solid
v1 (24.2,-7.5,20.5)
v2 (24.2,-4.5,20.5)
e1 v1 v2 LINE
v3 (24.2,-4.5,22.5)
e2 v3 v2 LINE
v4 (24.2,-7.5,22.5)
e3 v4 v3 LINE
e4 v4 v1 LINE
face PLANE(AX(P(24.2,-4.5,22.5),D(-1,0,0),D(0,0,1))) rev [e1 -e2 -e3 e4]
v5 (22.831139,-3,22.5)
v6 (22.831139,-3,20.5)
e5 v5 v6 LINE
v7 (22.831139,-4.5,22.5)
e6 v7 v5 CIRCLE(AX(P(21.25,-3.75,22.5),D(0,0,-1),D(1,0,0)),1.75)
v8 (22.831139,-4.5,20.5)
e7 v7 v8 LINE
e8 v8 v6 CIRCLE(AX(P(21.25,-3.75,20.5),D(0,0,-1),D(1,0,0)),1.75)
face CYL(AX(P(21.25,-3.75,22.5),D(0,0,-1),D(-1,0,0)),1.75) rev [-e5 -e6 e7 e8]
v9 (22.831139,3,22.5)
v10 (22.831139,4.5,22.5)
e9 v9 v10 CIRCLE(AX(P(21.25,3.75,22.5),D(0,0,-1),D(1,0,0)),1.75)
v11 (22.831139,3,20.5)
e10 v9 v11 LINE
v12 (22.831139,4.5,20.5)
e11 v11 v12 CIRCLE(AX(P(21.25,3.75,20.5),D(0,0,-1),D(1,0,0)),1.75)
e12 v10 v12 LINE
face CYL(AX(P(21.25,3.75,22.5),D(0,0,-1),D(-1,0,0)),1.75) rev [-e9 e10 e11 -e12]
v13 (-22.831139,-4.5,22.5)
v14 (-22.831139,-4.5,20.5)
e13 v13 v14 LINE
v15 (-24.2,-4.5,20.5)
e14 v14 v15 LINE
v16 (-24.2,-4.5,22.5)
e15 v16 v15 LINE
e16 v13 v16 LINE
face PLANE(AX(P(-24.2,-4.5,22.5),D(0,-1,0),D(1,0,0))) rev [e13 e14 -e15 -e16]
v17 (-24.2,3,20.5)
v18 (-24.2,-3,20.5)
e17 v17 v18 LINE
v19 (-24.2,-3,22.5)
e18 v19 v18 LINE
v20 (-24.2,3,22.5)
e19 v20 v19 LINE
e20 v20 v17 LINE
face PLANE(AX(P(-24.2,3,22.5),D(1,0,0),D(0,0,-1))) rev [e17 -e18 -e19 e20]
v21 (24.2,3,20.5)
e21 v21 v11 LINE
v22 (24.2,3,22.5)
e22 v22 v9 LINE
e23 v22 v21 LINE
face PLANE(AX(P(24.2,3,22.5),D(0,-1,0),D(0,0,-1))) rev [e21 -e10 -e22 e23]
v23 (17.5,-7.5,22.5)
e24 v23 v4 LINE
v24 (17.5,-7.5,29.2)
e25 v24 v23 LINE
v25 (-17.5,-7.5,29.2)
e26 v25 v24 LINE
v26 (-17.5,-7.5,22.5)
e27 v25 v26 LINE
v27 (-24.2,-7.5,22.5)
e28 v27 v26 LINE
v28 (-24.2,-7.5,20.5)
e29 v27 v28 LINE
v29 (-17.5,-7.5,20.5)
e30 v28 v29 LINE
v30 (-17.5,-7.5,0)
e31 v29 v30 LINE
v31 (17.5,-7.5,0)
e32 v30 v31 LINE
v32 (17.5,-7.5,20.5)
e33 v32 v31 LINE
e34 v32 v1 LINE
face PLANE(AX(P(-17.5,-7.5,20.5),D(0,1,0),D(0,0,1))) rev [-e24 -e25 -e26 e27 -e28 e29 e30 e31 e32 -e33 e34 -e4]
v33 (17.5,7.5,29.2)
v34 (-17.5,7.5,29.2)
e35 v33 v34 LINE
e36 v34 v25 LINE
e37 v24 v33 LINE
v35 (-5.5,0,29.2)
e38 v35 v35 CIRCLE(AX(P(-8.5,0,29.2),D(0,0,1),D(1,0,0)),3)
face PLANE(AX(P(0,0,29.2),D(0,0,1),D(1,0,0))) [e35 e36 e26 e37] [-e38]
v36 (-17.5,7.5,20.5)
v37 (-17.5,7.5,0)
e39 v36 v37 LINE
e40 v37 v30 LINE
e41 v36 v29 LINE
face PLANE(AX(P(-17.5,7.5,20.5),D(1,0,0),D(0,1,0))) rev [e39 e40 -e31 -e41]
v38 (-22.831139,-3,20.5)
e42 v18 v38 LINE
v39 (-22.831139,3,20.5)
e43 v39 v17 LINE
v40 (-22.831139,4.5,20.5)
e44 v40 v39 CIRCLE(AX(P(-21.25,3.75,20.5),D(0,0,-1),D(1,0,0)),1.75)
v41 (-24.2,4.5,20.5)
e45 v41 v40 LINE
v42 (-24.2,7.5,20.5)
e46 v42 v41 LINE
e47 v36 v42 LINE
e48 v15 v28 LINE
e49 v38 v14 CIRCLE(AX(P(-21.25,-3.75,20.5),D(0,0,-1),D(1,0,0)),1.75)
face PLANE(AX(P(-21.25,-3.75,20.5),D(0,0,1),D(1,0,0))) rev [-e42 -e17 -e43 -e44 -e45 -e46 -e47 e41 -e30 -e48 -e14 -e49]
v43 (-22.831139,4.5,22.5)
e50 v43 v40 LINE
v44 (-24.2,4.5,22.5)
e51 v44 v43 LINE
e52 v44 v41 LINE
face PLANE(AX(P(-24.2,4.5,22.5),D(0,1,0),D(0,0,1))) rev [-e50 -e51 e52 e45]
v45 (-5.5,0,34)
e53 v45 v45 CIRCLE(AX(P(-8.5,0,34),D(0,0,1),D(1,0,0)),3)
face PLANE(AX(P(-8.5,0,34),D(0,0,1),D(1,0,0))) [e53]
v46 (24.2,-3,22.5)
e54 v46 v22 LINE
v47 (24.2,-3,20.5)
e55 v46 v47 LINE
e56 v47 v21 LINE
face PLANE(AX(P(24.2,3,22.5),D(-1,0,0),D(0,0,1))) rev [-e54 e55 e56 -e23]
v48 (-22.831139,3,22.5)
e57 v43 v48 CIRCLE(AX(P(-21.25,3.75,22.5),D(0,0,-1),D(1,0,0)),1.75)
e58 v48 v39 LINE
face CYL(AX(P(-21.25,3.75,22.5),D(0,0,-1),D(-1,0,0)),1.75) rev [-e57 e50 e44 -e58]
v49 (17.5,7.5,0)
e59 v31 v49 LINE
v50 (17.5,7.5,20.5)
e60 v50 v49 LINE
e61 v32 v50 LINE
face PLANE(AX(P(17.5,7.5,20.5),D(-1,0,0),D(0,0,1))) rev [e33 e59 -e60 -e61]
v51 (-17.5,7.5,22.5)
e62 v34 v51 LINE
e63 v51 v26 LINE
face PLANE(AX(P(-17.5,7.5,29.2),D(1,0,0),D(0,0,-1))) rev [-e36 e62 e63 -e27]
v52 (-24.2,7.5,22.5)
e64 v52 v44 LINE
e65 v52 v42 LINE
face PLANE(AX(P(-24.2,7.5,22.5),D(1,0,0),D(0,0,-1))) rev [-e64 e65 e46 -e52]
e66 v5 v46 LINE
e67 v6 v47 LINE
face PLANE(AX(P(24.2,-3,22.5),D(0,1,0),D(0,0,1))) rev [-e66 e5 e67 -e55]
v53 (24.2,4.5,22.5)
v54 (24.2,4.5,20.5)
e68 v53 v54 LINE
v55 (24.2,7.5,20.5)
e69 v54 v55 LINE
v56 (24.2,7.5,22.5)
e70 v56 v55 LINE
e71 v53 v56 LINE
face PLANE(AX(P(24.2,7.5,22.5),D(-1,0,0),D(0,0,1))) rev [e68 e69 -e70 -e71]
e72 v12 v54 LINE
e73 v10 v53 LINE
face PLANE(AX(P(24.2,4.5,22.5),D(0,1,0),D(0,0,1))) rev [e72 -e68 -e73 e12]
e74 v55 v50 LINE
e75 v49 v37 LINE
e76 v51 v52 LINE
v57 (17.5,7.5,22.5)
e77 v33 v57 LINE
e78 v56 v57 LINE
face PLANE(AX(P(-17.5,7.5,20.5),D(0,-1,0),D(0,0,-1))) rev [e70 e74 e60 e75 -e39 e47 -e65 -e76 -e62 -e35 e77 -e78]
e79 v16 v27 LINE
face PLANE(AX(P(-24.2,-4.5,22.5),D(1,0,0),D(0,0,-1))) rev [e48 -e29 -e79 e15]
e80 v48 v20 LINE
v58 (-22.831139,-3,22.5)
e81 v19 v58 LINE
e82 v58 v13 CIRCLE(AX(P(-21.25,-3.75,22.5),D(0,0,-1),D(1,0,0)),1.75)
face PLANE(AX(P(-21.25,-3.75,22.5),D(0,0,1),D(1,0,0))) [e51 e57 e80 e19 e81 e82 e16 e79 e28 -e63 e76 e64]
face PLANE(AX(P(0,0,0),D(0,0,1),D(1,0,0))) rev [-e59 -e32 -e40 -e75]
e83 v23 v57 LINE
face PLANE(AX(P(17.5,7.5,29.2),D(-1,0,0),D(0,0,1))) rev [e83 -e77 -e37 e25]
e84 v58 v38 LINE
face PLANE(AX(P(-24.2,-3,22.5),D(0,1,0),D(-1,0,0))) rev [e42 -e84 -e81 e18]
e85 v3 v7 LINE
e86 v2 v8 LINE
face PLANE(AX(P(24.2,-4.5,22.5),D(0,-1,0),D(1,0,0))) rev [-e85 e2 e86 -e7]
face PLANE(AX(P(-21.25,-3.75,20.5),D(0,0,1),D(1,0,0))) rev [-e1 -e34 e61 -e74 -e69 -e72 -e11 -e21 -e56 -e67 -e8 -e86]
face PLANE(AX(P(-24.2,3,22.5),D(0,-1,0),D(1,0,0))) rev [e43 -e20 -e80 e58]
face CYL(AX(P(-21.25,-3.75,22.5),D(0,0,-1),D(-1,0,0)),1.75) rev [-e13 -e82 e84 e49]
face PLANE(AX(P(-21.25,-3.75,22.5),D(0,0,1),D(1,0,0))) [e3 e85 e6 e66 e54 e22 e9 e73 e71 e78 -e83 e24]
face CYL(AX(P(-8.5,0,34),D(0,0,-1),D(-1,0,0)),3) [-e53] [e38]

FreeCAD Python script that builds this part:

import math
import FreeCAD as App
import Part
import Sketcher


def add_polygon(sketch, points):
    """Adds a closed chain of lines whose ends are joined by coincident constraints."""
    first, n = sketch.GeometryCount, len(points)
    for a, b in zip(points, points[1:] + points[:1]):
        sketch.addGeometry(Part.LineSegment(App.Vector(*a, 0), App.Vector(*b, 0)), False)
    for i in range(n):
        sketch.addConstraint(Sketcher.Constraint("Coincident", first + i, 2, first + (i + 1) % n, 1))

doc = App.newDocument("Part")
params = doc.addObject("Spreadsheet::Sheet", "Params")
for row, (alias, value) in enumerate([
    ("sketch1_width", "35 mm"),
    ("sketch1_height", "15 mm"),
    ("pad1_length", "20.5 mm"),
    ("sketch2_height", "3 mm"),
    ("sketch2_height2", "6 mm"),
    ("sketch2_radius", "1.75 mm"),
    ("sketch2_width", "48.4 mm"),
    ("pad2_length", "2 mm"),
    ("sketch3_width", "35 mm"),
    ("sketch3_height", "15 mm"),
    ("pad3_length", "6.7 mm"),
    ("sketch4_diameter", "6 mm"),
    ("pad4_length", "4.8 mm"),
], start=1):
    params.set(f"A{row}", alias)
    params.set(f"B{row}", "=" + value)
    params.setAlias(f"B{row}", alias)

body = doc.addObject("PartDesign::Body", "Body")

# Sketch on XY plane
sketch1 = doc.addObject("Sketcher::SketchObject", "Sketch")
body.addObject(sketch1)
sketch1.AttachmentSupport = (doc.XY_Plane, [""])
sketch1.MapMode = "FlatFace"
add_polygon(sketch1, [(-18, 8), (-18, -8), (18, -8), (18, 8)])  # lines 0-3
sketch1.addConstraint([
    Sketcher.Constraint("Vertical", 0),
    Sketcher.Constraint("Horizontal", 1),
    Sketcher.Constraint("Vertical", 2),
    Sketcher.Constraint("Horizontal", 3),
    Sketcher.Constraint("Symmetric", 0, 2, 2, 2, -1, 1),
    Sketcher.Constraint("DistanceX", 1, 1, 1, 2, 35.0),
    Sketcher.Constraint("DistanceY", 0, 2, 0, 1, 15.0),
])
sketch1.setExpression("Constraints[9]", "Params.sketch1_width")
sketch1.setExpression("Constraints[10]", "Params.sketch1_height")
pad1 = doc.addObject("PartDesign::Pad", "Pad")
body.addObject(pad1)
pad1.Profile = sketch1
pad1.setExpression("Length", "Params.pad1_length")

# Sketch on XY plane
sketch2 = doc.addObject("Sketcher::SketchObject", "Sketch001")
body.addObject(sketch2)
sketch2.AttachmentSupport = (doc.XY_Plane, [""])
sketch2.MapMode = "FlatFace"
sketch2.AttachmentOffset = App.Placement(App.Vector(0, 0, 20.5), App.Rotation())
sketch2.addGeometry([
    Part.LineSegment(App.Vector(24.2, 7.5, 0), App.Vector(-24.2, 7.5, 0)),  # 0
    Part.LineSegment(App.Vector(-24.2, 7.5, 0), App.Vector(-24.2, 4.5, 0)),  # 1
    Part.LineSegment(App.Vector(-24.2, 4.5, 0), App.Vector(-22.8, 4.5, 0)),  # 2
    Part.ArcOfCircle(Part.Circle(App.Vector(-21.2, 3.8, 0), App.Vector(0, 0, 1), 1.8), math.radians(-155), math.radians(155)),  # 3
    Part.LineSegment(App.Vector(-22.8, 3, 0), App.Vector(-24.2, 3, 0)),  # 4
    Part.LineSegment(App.Vector(-24.2, 3, 0), App.Vector(-24.2, -3, 0)),  # 5
    Part.LineSegment(App.Vector(-24.2, -3, 0), App.Vector(-22.8, -3, 0)),  # 6
    Part.ArcOfCircle(Part.Circle(App.Vector(-21.2, -3.8, 0), App.Vector(0, 0, 1), 1.8), math.radians(-155), math.radians(155)),  # 7
    Part.LineSegment(App.Vector(-22.8, -4.5, 0), App.Vector(-24.2, -4.5, 0)),  # 8
    Part.LineSegment(App.Vector(-24.2, -4.5, 0), App.Vector(-24.2, -7.5, 0)),  # 9
    Part.LineSegment(App.Vector(-24.2, -7.5, 0), App.Vector(24.2, -7.5, 0)),  # 10
    Part.LineSegment(App.Vector(24.2, -7.5, 0), App.Vector(24.2, -4.5, 0)),  # 11
    Part.LineSegment(App.Vector(24.2, -4.5, 0), App.Vector(22.8, -4.5, 0)),  # 12
    Part.ArcOfCircle(Part.Circle(App.Vector(21.2, -3.8, 0), App.Vector(0, 0, 1), 1.8), math.radians(25), math.radians(335)),  # 13
    Part.LineSegment(App.Vector(22.8, -3, 0), App.Vector(24.2, -3, 0)),  # 14
    Part.LineSegment(App.Vector(24.2, -3, 0), App.Vector(24.2, 3, 0)),  # 15
    Part.LineSegment(App.Vector(24.2, 3, 0), App.Vector(22.8, 3, 0)),  # 16
    Part.ArcOfCircle(Part.Circle(App.Vector(21.2, 3.8, 0), App.Vector(0, 0, 1), 1.8), math.radians(25), math.radians(335)),  # 17
    Part.LineSegment(App.Vector(22.8, 4.5, 0), App.Vector(24.2, 4.5, 0)),  # 18
    Part.LineSegment(App.Vector(24.2, 4.5, 0), App.Vector(24.2, 7.5, 0)),  # 19
], False)
sketch2.addConstraint([
    Sketcher.Constraint("Coincident", 0, 2, 1, 1),
    Sketcher.Constraint("Coincident", 1, 2, 2, 1),
    Sketcher.Constraint("Coincident", 2, 2, 3, 2),
    Sketcher.Constraint("Coincident", 3, 1, 4, 1),
    Sketcher.Constraint("Coincident", 4, 2, 5, 1),
    Sketcher.Constraint("Coincident", 5, 2, 6, 1),
    Sketcher.Constraint("Coincident", 6, 2, 7, 2),
    Sketcher.Constraint("Coincident", 7, 1, 8, 1),
    Sketcher.Constraint("Coincident", 8, 2, 9, 1),
    Sketcher.Constraint("Coincident", 9, 2, 10, 1),
    Sketcher.Constraint("Coincident", 10, 2, 11, 1),
    Sketcher.Constraint("Coincident", 11, 2, 12, 1),
    Sketcher.Constraint("Coincident", 12, 2, 13, 2),
    Sketcher.Constraint("Coincident", 13, 1, 14, 1),
    Sketcher.Constraint("Coincident", 14, 2, 15, 1),
    Sketcher.Constraint("Coincident", 15, 2, 16, 1),
    Sketcher.Constraint("Coincident", 16, 2, 17, 2),
    Sketcher.Constraint("Coincident", 17, 1, 18, 1),
    Sketcher.Constraint("Coincident", 18, 2, 19, 1),
    Sketcher.Constraint("Coincident", 19, 2, 0, 1),
    Sketcher.Constraint("Horizontal", 0),
    Sketcher.Constraint("Vertical", 1),
    Sketcher.Constraint("Horizontal", 2),
    Sketcher.Constraint("Horizontal", 4),
    Sketcher.Constraint("Vertical", 5),
    Sketcher.Constraint("Horizontal", 6),
    Sketcher.Constraint("Horizontal", 8),
    Sketcher.Constraint("Vertical", 9),
    Sketcher.Constraint("Horizontal", 10),
    Sketcher.Constraint("Vertical", 11),
    Sketcher.Constraint("Horizontal", 12),
    Sketcher.Constraint("Horizontal", 14),
    Sketcher.Constraint("Vertical", 15),
    Sketcher.Constraint("Horizontal", 16),
    Sketcher.Constraint("Horizontal", 18),
    Sketcher.Constraint("Vertical", 19),
    Sketcher.Constraint("Equal", 3, 7),
    Sketcher.Constraint("Equal", 7, 13),
    Sketcher.Constraint("Equal", 13, 17),
    Sketcher.Constraint("Symmetric", 3, 3, 13, 3, -1, 1),
    Sketcher.Constraint("Symmetric", 7, 3, 17, 3, -1, 1),
    Sketcher.Constraint("Symmetric", 0, 2, 10, 2, -1, 1),
    Sketcher.Constraint("Symmetric", 4, 2, 14, 2, -1, 1),
    Sketcher.Constraint("Symmetric", 8, 2, 18, 2, -1, 1),
    Sketcher.Constraint("Symmetric", 7, 3, 13, 3, -2),
    Sketcher.Constraint("Symmetric", 8, 2, 11, 2, -2),
    Sketcher.Constraint("Horizontal", 6, 2, 13, 1),
    Sketcher.Constraint("Horizontal", 4, 2, 15, 2),
    Sketcher.Constraint("Horizontal", 2, 2, 17, 1),
    Sketcher.Constraint("Vertical", 2, 2, 3, 1),
    Sketcher.Constraint("Vertical", 1, 2, 4, 2),
    Sketcher.Constraint("DistanceY", 1, 2, 1, 1, 3.0),
    Sketcher.Constraint("DistanceY", 5, 2, 5, 1, 6.0),
    Sketcher.Constraint("Radius", 3, 1.75),
    Sketcher.Constraint("DistanceX", 0, 2, 0, 1, 48.4),
    Sketcher.Constraint("DistanceY", -1, 1, 0, 2, 7.5),
    Sketcher.Constraint("DistanceX", 7, 3, 13, 3, 42.5),
])
sketch2.setExpression("Constraints[51]", "Params.sketch2_height")
sketch2.setExpression("Constraints[52]", "Params.sketch2_height2")
sketch2.setExpression("Constraints[53]", "Params.sketch2_radius")
sketch2.setExpression("Constraints[54]", "Params.sketch2_width")
pad2 = doc.addObject("PartDesign::Pad", "Pad001")
body.addObject(pad2)
pad2.Profile = sketch2
pad2.setExpression("Length", "Params.pad2_length")

# Sketch on XY plane
sketch3 = doc.addObject("Sketcher::SketchObject", "Sketch002")
body.addObject(sketch3)
sketch3.AttachmentSupport = (doc.XY_Plane, [""])
sketch3.MapMode = "FlatFace"
sketch3.AttachmentOffset = App.Placement(App.Vector(0, 0, 22.5), App.Rotation())
add_polygon(sketch3, [(-18, 8), (-18, -8), (18, -8), (18, 8)])  # lines 0-3
sketch3.addConstraint([
    Sketcher.Constraint("Vertical", 0),
    Sketcher.Constraint("Horizontal", 1),
    Sketcher.Constraint("Vertical", 2),
    Sketcher.Constraint("Horizontal", 3),
    Sketcher.Constraint("Symmetric", 0, 2, 2, 2, -1, 1),
    Sketcher.Constraint("DistanceX", 1, 1, 1, 2, 35.0),
    Sketcher.Constraint("DistanceY", 0, 2, 0, 1, 15.0),
])
sketch3.setExpression("Constraints[9]", "Params.sketch3_width")
sketch3.setExpression("Constraints[10]", "Params.sketch3_height")
pad3 = doc.addObject("PartDesign::Pad", "Pad002")
body.addObject(pad3)
pad3.Profile = sketch3
pad3.setExpression("Length", "Params.pad3_length")

# Sketch on XY plane
sketch4 = doc.addObject("Sketcher::SketchObject", "Sketch003")
body.addObject(sketch4)
sketch4.AttachmentSupport = (doc.XY_Plane, [""])
sketch4.MapMode = "FlatFace"
sketch4.AttachmentOffset = App.Placement(App.Vector(0, 0, 29.2), App.Rotation())
sketch4.addGeometry(Part.Circle(App.Vector(-8.5, 0, 0), App.Vector(0, 0, 1), 3), False)
sketch4.addConstraint([
    Sketcher.Constraint("PointOnObject", 0, 3, -1),
    Sketcher.Constraint("Diameter", 0, 6.0),
    Sketcher.Constraint("DistanceX", 0, 3, -1, 1, 8.5),
])
sketch4.setExpression("Constraints[1]", "Params.sketch4_diameter")
pad4 = doc.addObject("PartDesign::Pad", "Pad003")
body.addObject(pad4)
pad4.Profile = sketch4
pad4.setExpression("Length", "Params.pad4_length")

doc.recompute()
